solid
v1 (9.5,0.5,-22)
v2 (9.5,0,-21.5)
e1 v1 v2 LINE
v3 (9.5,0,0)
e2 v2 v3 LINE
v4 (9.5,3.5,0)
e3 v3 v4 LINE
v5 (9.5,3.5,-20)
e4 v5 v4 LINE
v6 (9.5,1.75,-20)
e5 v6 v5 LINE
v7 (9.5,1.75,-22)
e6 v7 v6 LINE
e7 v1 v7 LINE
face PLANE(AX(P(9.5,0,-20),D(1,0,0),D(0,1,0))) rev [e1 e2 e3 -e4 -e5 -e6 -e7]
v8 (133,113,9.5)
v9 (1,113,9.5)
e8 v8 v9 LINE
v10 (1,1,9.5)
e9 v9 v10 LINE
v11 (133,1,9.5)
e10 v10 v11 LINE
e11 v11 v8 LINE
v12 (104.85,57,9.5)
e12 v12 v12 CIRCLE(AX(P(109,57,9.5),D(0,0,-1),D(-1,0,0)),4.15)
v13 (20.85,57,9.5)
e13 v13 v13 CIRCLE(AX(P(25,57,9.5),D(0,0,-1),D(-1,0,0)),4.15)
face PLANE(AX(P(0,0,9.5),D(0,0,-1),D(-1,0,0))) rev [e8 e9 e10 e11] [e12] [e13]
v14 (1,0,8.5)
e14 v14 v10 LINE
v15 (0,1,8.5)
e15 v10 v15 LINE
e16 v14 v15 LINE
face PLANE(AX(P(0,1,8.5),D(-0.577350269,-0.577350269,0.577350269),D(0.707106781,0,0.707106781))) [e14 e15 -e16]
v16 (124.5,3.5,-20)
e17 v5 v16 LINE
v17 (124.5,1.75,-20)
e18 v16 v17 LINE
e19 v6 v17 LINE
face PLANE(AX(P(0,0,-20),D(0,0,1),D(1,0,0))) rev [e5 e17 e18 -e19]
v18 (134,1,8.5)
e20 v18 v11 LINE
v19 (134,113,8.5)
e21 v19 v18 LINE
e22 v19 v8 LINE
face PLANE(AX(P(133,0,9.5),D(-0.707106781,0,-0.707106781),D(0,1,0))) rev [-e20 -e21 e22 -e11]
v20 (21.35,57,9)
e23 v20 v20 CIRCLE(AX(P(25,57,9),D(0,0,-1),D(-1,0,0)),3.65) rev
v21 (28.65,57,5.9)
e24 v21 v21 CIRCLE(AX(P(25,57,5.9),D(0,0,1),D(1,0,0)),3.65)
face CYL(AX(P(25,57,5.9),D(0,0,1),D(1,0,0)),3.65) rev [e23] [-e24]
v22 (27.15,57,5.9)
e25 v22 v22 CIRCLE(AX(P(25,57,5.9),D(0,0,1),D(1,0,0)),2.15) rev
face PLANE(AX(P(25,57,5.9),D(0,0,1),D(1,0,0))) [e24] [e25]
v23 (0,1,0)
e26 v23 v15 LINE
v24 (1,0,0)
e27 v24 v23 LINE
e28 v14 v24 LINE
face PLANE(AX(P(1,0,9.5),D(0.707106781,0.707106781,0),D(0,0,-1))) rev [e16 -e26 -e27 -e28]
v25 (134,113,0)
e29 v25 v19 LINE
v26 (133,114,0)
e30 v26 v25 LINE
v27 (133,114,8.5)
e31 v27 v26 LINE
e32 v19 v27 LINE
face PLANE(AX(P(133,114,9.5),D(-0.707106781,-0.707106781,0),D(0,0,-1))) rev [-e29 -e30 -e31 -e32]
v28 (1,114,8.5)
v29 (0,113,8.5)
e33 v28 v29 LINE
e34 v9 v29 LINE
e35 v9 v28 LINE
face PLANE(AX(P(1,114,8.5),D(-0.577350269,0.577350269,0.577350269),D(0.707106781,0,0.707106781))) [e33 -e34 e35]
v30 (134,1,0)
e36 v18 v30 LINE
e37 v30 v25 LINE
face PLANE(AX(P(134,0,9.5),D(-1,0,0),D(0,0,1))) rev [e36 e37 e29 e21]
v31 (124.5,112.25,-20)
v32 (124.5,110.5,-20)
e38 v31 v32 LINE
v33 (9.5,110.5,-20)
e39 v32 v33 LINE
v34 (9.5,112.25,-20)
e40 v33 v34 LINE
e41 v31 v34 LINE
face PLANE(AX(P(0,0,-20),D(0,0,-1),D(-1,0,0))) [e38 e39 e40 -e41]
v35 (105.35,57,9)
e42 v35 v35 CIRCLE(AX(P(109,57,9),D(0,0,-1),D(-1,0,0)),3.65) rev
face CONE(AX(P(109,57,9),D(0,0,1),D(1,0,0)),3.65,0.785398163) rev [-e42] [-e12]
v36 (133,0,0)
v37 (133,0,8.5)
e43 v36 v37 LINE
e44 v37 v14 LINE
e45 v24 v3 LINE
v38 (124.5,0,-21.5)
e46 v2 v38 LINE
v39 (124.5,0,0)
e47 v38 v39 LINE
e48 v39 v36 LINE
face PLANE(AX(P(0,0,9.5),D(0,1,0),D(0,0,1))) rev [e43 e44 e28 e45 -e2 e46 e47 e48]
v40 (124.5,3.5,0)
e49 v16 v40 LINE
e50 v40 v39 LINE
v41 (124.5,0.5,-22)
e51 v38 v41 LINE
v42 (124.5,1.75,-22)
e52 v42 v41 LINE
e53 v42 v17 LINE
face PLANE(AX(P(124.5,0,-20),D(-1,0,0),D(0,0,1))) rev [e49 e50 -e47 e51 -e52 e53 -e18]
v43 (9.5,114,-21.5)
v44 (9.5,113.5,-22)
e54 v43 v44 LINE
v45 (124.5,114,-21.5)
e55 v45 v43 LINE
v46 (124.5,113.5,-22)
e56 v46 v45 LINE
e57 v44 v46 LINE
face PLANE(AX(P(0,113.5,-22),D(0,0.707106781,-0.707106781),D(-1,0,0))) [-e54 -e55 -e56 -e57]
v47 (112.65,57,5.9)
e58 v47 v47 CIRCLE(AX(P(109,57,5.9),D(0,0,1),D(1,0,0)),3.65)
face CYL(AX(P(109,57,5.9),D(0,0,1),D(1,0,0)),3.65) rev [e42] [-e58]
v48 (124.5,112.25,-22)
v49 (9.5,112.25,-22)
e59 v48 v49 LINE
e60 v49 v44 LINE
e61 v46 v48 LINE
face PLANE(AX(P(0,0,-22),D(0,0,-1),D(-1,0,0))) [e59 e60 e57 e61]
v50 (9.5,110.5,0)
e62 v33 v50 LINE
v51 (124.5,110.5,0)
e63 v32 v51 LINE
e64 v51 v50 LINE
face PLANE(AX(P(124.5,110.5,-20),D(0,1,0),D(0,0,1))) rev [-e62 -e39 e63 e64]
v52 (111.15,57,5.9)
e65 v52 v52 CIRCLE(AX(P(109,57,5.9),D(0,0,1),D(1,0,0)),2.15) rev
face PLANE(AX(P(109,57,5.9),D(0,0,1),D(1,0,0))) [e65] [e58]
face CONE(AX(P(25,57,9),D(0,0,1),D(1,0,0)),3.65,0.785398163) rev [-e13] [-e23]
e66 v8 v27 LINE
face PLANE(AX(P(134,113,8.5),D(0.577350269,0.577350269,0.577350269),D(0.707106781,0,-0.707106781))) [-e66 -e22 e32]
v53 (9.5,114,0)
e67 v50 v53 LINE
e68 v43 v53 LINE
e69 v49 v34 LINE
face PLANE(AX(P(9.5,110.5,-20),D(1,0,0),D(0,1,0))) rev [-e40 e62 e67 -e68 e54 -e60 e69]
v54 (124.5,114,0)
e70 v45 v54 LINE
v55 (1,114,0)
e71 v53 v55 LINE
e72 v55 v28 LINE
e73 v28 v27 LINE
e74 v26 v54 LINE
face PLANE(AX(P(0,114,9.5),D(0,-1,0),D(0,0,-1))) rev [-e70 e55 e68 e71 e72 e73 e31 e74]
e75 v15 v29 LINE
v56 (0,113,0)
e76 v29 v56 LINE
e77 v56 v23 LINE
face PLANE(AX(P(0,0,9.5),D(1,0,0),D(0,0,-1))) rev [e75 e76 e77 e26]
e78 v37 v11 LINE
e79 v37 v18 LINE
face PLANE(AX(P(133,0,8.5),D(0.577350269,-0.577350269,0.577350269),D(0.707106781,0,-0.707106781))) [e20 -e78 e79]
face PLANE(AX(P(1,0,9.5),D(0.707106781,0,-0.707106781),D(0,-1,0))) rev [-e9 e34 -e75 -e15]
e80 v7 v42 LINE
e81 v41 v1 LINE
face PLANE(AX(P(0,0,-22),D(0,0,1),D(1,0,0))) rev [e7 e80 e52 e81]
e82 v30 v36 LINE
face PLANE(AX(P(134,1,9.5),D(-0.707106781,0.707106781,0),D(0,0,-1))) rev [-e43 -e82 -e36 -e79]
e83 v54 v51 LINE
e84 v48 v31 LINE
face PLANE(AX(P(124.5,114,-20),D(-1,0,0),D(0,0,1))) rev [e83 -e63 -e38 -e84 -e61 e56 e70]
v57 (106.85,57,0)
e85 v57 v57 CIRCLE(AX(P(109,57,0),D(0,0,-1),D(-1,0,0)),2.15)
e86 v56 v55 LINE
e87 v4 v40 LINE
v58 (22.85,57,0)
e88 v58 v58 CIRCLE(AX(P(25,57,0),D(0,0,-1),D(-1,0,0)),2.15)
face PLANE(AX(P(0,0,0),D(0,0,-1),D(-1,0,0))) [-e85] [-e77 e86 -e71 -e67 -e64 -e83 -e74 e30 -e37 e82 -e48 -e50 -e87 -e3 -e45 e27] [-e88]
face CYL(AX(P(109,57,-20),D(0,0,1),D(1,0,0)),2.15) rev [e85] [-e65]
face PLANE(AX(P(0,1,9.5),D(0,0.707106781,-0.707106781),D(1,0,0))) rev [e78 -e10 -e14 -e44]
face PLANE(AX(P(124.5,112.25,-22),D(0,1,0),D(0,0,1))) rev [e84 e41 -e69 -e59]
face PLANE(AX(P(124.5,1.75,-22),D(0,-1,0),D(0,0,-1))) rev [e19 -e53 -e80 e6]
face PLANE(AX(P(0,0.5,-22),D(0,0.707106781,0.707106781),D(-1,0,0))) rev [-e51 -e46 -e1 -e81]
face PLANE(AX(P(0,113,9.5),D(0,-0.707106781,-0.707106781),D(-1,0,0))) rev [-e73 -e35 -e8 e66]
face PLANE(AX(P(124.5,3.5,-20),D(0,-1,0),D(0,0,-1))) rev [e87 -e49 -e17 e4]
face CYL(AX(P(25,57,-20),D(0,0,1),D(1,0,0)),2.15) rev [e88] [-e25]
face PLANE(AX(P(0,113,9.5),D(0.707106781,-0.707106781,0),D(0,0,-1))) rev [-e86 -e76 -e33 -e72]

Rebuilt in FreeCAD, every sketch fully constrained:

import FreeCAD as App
import Part
import Sketcher
from FreeCAD import Vector


def edges_at(feature, points):
    """Names of the edges that pass closest to the given points."""
    edges = feature.Shape.Edges
    near = lambda p: min(range(len(edges)), key=lambda i: edges[i].distToShape(Part.Vertex(*p))[0])
    return sorted({f"Edge{near(p) + 1}" for p in points})

doc = App.newDocument("Part")
body = doc.addObject("PartDesign::Body", "Body")

sketch1 = body.newObject("Sketcher::SketchObject", "Sketch")
sketch1.AttachmentSupport = (doc.getObject("XY_Plane"), [""])
sketch1.MapMode = "FlatFace"
sketch1.addGeometry(Part.LineSegment(Vector(0, 114, 0), Vector(0, 0, 0)), False)
sketch1.addGeometry(Part.LineSegment(Vector(0, 0, 0), Vector(134, 0, 0)), False)
sketch1.addGeometry(Part.LineSegment(Vector(134, 0, 0), Vector(134, 114, 0)), False)
sketch1.addGeometry(Part.LineSegment(Vector(134, 114, 0), Vector(0, 114, 0)), False)
sketch1.addConstraint(Sketcher.Constraint("Coincident", 0, 2, 1, 1))
sketch1.addConstraint(Sketcher.Constraint("Coincident", 1, 2, 2, 1))
sketch1.addConstraint(Sketcher.Constraint("Coincident", 2, 2, 3, 1))
sketch1.addConstraint(Sketcher.Constraint("Coincident", 3, 2, 0, 1))
sketch1.addConstraint(Sketcher.Constraint("Vertical", 0))
sketch1.addConstraint(Sketcher.Constraint("Horizontal", 1))
sketch1.addConstraint(Sketcher.Constraint("Vertical", 2))
sketch1.addConstraint(Sketcher.Constraint("Horizontal", 3))
sketch1.addConstraint(Sketcher.Constraint("Coincident", 0, 2, -1, 1))
sketch1.addConstraint(Sketcher.Constraint("DistanceX", 1, 1, 1, 2, 134.0))
sketch1.addConstraint(Sketcher.Constraint("DistanceY", 0, 2, 0, 1, 114.0))
pad1 = body.newObject("PartDesign::Pad", "Pad")
pad1.Profile = sketch1
pad1.Length = 9.5

sketch2 = body.newObject("Sketcher::SketchObject", "Sketch001")
sketch2.AttachmentSupport = (doc.getObject("XY_Plane"), [""])
sketch2.MapMode = "FlatFace"
sketch2.addGeometry(Part.LineSegment(Vector(124.5, 114, 0), Vector(124.5, 110.5, 0)), False)
sketch2.addGeometry(Part.LineSegment(Vector(124.5, 110.5, 0), Vector(9.5, 110.5, 0)), False)
sketch2.addGeometry(Part.LineSegment(Vector(9.5, 110.5, 0), Vector(9.5, 114, 0)), False)
sketch2.addGeometry(Part.LineSegment(Vector(9.5, 114, 0), Vector(124.5, 114, 0)), False)
sketch2.addGeometry(Part.LineSegment(Vector(124.5, 3.5, 0), Vector(124.5, 0, 0)), False)
sketch2.addGeometry(Part.LineSegment(Vector(124.5, 0, 0), Vector(9.5, 0, 0)), False)
sketch2.addGeometry(Part.LineSegment(Vector(9.5, 0, 0), Vector(9.5, 3.5, 0)), False)
sketch2.addGeometry(Part.LineSegment(Vector(9.5, 3.5, 0), Vector(124.5, 3.5, 0)), False)
sketch2.addConstraint(Sketcher.Constraint("Coincident", 0, 2, 1, 1))
sketch2.addConstraint(Sketcher.Constraint("Coincident", 1, 2, 2, 1))
sketch2.addConstraint(Sketcher.Constraint("Coincident", 2, 2, 3, 1))
sketch2.addConstraint(Sketcher.Constraint("Coincident", 3, 2, 0, 1))
sketch2.addConstraint(Sketcher.Constraint("Coincident", 4, 2, 5, 1))
sketch2.addConstraint(Sketcher.Constraint("Coincident", 5, 2, 6, 1))
sketch2.addConstraint(Sketcher.Constraint("Coincident", 6, 2, 7, 1))
sketch2.addConstraint(Sketcher.Constraint("Coincident", 7, 2, 4, 1))
sketch2.addConstraint(Sketcher.Constraint("Vertical", 0))
sketch2.addConstraint(Sketcher.Constraint("Horizontal", 1))
sketch2.addConstraint(Sketcher.Constraint("Vertical", 2))
sketch2.addConstraint(Sketcher.Constraint("Horizontal", 3))
sketch2.addConstraint(Sketcher.Constraint("Vertical", 4))
sketch2.addConstraint(Sketcher.Constraint("Horizontal", 5))
sketch2.addConstraint(Sketcher.Constraint("Vertical", 6))
sketch2.addConstraint(Sketcher.Constraint("Horizontal", 7))
sketch2.addConstraint(Sketcher.Constraint("PointOnObject", 4, 2, -1))
sketch2.addConstraint(Sketcher.Constraint("Vertical", 3, 2, 4, 2))
sketch2.addConstraint(Sketcher.Constraint("Vertical", 2, 2, 5, 2))
sketch2.addConstraint(Sketcher.Constraint("Equal", 2, 4))
sketch2.addConstraint(Sketcher.Constraint("DistanceX", 1, 2, 1, 1, 115.0))
sketch2.addConstraint(Sketcher.Constraint("DistanceY", 0, 2, 0, 1, 3.5))
sketch2.addConstraint(Sketcher.Constraint("DistanceY", -1, 1, 2, 2, 114.0))
sketch2.addConstraint(Sketcher.Constraint("DistanceX", -1, 1, 0, 2, 124.5))
pad2 = body.newObject("PartDesign::Pad", "Pad001")
pad2.Profile = sketch2
pad2.Length = 20
pad2.Reversed = True

sketch3 = body.newObject("Sketcher::SketchObject", "Sketch002")
sketch3.AttachmentSupport = (doc.getObject("XY_Plane"), [""])
sketch3.MapMode = "FlatFace"
sketch3.AttachmentOffset = App.Placement(Vector(0, 0, 9.5), App.Rotation())
sketch3.addGeometry(Part.Circle(Vector(25, 57, 0), Vector(0, 0, 1), 2.1), False)
sketch3.addGeometry(Part.Circle(Vector(109, 57, 0), Vector(0, 0, 1), 2.1), False)
sketch3.addConstraint(Sketcher.Constraint("Equal", 0, 1))
sketch3.addConstraint(Sketcher.Constraint("Horizontal", 0, 3, 1, 3))
sketch3.addConstraint(Sketcher.Constraint("Diameter", 0, 4.3))
sketch3.addConstraint(Sketcher.Constraint("DistanceX", -1, 1, 0, 3, 25.0))
sketch3.addConstraint(Sketcher.Constraint("DistanceY", -1, 1, 0, 3, 57.0))
sketch3.addConstraint(Sketcher.Constraint("DistanceX", -1, 1, 1, 3, 109.0))
pocket1 = body.newObject("PartDesign::Pocket", "Pocket")
pocket1.Profile = sketch3
pocket1.Type = "ThroughAll"

sketch4 = body.newObject("Sketcher::SketchObject", "Sketch003")
sketch4.AttachmentSupport = (doc.getObject("XY_Plane"), [""])
sketch4.MapMode = "FlatFace"
sketch4.AttachmentOffset = App.Placement(Vector(0, 0, 9.5), App.Rotation())
sketch4.addGeometry(Part.Circle(Vector(25, 57, 0), Vector(0, 0, 1), 3.6), False)
sketch4.addGeometry(Part.Circle(Vector(109, 57, 0), Vector(0, 0, 1), 3.6), False)
sketch4.addConstraint(Sketcher.Constraint("Equal", 0, 1))
sketch4.addConstraint(Sketcher.Constraint("Horizontal", 0, 3, 1, 3))
sketch4.addConstraint(Sketcher.Constraint("Diameter", 0, 7.3))
sketch4.addConstraint(Sketcher.Constraint("DistanceX", -1, 1, 0, 3, 25.0))
sketch4.addConstraint(Sketcher.Constraint("DistanceY", -1, 1, 0, 3, 57.0))
sketch4.addConstraint(Sketcher.Constraint("DistanceX", -1, 1, 1, 3, 109.0))
pocket2 = body.newObject("PartDesign::Pocket", "Pocket001")
pocket2.Profile = sketch4
pocket2.Length = 3.6
doc.recompute()

chamfer = body.newObject("PartDesign::Chamfer", "Chamfer")
chamfer.Base = (pocket2, edges_at(pocket2, [
    (134, 57, 9.5),
    (67, 114, 9.5),
    (0, 57, 9.5),
    (67, 0, 9.5),
    (0, 114, 4.75),
    (134, 114, 4.75),
    (134, 0, 4.75),
    (0, 0, 4.75),
]))
chamfer.Size = 1
doc.recompute()

chamfer2 = body.newObject("PartDesign::Chamfer", "Chamfer001")
chamfer2.Base = (chamfer, edges_at(chamfer, [(21.35, 57, 9.5), (105.35, 57, 9.5)]))
chamfer2.Size = 0.5

sketch5 = body.newObject("Sketcher::SketchObject", "Sketch004")
sketch5.AttachmentSupport = (doc.getObject("XY_Plane"), [""])
sketch5.MapMode = "FlatFace"
sketch5.AttachmentOffset = App.Placement(Vector(0, 0, -20), App.Rotation())
sketch5.addGeometry(Part.LineSegment(Vector(124.5, 114, 0), Vector(124.5, 112.2, 0)), False)
sketch5.addGeometry(Part.LineSegment(Vector(124.5, 112.2, 0), Vector(9.5, 112.2, 0)), False)
sketch5.addGeometry(Part.LineSegment(Vector(9.5, 112.2, 0), Vector(9.5, 114, 0)), False)
sketch5.addGeometry(Part.LineSegment(Vector(9.5, 114, 0), Vector(124.5, 114, 0)), False)
sketch5.addGeometry(Part.LineSegment(Vector(124.5, 1.8, 0), Vector(124.5, 0, 0)), False)
sketch5.addGeometry(Part.LineSegment(Vector(124.5, 0, 0), Vector(9.5, 0, 0)), False)
sketch5.addGeometry(Part.LineSegment(Vector(9.5, 0, 0), Vector(9.5, 1.8, 0)), False)
sketch5.addGeometry(Part.LineSegment(Vector(9.5, 1.8, 0), Vector(124.5, 1.8, 0)), False)
sketch5.addConstraint(Sketcher.Constraint("Coincident", 0, 2, 1, 1))
sketch5.addConstraint(Sketcher.Constraint("Coincident", 1, 2, 2, 1))
sketch5.addConstraint(Sketcher.Constraint("Coincident", 2, 2, 3, 1))
sketch5.addConstraint(Sketcher.Constraint("Coincident", 3, 2, 0, 1))
sketch5.addConstraint(Sketcher.Constraint("Coincident", 4, 2, 5, 1))
sketch5.addConstraint(Sketcher.Constraint("Coincident", 5, 2, 6, 1))
sketch5.addConstraint(Sketcher.Constraint("Coincident", 6, 2, 7, 1))
sketch5.addConstraint(Sketcher.Constraint("Coincident", 7, 2, 4, 1))
sketch5.addConstraint(Sketcher.Constraint("Vertical", 0))
sketch5.addConstraint(Sketcher.Constraint("Horizontal", 1))
sketch5.addConstraint(Sketcher.Constraint("Vertical", 2))
sketch5.addConstraint(Sketcher.Constraint("Horizontal", 3))
sketch5.addConstraint(Sketcher.Constraint("Vertical", 4))
sketch5.addConstraint(Sketcher.Constraint("Horizontal", 5))
sketch5.addConstraint(Sketcher.Constraint("Vertical", 6))
sketch5.addConstraint(Sketcher.Constraint("Horizontal", 7))
sketch5.addConstraint(Sketcher.Constraint("PointOnObject", 4, 2, -1))
sketch5.addConstraint(Sketcher.Constraint("Vertical", 3, 2, 4, 2))
sketch5.addConstraint(Sketcher.Constraint("Vertical", 2, 2, 5, 2))
sketch5.addConstraint(Sketcher.Constraint("Equal", 2, 4))
sketch5.addConstraint(Sketcher.Constraint("DistanceX", 1, 2, 1, 1, 115.0))
sketch5.addConstraint(Sketcher.Constraint("DistanceY", -1, 1, 2, 2, 114.0))
sketch5.addConstraint(Sketcher.Constraint("DistanceY", 0, 2, 0, 1, 1.75))
sketch5.addConstraint(Sketcher.Constraint("DistanceX", -1, 1, 0, 2, 124.5))
pad3 = body.newObject("PartDesign::Pad", "Pad002")
pad3.Profile = sketch5
pad3.Length = 2
pad3.Reversed = True
doc.recompute()

chamfer3 = body.newObject("PartDesign::Chamfer", "Chamfer002")
chamfer3.Base = (pad3, edges_at(pad3, [(67, 114, -22), (67, 0, -22)]))
chamfer3.Size = 0.5

doc.recompute()
